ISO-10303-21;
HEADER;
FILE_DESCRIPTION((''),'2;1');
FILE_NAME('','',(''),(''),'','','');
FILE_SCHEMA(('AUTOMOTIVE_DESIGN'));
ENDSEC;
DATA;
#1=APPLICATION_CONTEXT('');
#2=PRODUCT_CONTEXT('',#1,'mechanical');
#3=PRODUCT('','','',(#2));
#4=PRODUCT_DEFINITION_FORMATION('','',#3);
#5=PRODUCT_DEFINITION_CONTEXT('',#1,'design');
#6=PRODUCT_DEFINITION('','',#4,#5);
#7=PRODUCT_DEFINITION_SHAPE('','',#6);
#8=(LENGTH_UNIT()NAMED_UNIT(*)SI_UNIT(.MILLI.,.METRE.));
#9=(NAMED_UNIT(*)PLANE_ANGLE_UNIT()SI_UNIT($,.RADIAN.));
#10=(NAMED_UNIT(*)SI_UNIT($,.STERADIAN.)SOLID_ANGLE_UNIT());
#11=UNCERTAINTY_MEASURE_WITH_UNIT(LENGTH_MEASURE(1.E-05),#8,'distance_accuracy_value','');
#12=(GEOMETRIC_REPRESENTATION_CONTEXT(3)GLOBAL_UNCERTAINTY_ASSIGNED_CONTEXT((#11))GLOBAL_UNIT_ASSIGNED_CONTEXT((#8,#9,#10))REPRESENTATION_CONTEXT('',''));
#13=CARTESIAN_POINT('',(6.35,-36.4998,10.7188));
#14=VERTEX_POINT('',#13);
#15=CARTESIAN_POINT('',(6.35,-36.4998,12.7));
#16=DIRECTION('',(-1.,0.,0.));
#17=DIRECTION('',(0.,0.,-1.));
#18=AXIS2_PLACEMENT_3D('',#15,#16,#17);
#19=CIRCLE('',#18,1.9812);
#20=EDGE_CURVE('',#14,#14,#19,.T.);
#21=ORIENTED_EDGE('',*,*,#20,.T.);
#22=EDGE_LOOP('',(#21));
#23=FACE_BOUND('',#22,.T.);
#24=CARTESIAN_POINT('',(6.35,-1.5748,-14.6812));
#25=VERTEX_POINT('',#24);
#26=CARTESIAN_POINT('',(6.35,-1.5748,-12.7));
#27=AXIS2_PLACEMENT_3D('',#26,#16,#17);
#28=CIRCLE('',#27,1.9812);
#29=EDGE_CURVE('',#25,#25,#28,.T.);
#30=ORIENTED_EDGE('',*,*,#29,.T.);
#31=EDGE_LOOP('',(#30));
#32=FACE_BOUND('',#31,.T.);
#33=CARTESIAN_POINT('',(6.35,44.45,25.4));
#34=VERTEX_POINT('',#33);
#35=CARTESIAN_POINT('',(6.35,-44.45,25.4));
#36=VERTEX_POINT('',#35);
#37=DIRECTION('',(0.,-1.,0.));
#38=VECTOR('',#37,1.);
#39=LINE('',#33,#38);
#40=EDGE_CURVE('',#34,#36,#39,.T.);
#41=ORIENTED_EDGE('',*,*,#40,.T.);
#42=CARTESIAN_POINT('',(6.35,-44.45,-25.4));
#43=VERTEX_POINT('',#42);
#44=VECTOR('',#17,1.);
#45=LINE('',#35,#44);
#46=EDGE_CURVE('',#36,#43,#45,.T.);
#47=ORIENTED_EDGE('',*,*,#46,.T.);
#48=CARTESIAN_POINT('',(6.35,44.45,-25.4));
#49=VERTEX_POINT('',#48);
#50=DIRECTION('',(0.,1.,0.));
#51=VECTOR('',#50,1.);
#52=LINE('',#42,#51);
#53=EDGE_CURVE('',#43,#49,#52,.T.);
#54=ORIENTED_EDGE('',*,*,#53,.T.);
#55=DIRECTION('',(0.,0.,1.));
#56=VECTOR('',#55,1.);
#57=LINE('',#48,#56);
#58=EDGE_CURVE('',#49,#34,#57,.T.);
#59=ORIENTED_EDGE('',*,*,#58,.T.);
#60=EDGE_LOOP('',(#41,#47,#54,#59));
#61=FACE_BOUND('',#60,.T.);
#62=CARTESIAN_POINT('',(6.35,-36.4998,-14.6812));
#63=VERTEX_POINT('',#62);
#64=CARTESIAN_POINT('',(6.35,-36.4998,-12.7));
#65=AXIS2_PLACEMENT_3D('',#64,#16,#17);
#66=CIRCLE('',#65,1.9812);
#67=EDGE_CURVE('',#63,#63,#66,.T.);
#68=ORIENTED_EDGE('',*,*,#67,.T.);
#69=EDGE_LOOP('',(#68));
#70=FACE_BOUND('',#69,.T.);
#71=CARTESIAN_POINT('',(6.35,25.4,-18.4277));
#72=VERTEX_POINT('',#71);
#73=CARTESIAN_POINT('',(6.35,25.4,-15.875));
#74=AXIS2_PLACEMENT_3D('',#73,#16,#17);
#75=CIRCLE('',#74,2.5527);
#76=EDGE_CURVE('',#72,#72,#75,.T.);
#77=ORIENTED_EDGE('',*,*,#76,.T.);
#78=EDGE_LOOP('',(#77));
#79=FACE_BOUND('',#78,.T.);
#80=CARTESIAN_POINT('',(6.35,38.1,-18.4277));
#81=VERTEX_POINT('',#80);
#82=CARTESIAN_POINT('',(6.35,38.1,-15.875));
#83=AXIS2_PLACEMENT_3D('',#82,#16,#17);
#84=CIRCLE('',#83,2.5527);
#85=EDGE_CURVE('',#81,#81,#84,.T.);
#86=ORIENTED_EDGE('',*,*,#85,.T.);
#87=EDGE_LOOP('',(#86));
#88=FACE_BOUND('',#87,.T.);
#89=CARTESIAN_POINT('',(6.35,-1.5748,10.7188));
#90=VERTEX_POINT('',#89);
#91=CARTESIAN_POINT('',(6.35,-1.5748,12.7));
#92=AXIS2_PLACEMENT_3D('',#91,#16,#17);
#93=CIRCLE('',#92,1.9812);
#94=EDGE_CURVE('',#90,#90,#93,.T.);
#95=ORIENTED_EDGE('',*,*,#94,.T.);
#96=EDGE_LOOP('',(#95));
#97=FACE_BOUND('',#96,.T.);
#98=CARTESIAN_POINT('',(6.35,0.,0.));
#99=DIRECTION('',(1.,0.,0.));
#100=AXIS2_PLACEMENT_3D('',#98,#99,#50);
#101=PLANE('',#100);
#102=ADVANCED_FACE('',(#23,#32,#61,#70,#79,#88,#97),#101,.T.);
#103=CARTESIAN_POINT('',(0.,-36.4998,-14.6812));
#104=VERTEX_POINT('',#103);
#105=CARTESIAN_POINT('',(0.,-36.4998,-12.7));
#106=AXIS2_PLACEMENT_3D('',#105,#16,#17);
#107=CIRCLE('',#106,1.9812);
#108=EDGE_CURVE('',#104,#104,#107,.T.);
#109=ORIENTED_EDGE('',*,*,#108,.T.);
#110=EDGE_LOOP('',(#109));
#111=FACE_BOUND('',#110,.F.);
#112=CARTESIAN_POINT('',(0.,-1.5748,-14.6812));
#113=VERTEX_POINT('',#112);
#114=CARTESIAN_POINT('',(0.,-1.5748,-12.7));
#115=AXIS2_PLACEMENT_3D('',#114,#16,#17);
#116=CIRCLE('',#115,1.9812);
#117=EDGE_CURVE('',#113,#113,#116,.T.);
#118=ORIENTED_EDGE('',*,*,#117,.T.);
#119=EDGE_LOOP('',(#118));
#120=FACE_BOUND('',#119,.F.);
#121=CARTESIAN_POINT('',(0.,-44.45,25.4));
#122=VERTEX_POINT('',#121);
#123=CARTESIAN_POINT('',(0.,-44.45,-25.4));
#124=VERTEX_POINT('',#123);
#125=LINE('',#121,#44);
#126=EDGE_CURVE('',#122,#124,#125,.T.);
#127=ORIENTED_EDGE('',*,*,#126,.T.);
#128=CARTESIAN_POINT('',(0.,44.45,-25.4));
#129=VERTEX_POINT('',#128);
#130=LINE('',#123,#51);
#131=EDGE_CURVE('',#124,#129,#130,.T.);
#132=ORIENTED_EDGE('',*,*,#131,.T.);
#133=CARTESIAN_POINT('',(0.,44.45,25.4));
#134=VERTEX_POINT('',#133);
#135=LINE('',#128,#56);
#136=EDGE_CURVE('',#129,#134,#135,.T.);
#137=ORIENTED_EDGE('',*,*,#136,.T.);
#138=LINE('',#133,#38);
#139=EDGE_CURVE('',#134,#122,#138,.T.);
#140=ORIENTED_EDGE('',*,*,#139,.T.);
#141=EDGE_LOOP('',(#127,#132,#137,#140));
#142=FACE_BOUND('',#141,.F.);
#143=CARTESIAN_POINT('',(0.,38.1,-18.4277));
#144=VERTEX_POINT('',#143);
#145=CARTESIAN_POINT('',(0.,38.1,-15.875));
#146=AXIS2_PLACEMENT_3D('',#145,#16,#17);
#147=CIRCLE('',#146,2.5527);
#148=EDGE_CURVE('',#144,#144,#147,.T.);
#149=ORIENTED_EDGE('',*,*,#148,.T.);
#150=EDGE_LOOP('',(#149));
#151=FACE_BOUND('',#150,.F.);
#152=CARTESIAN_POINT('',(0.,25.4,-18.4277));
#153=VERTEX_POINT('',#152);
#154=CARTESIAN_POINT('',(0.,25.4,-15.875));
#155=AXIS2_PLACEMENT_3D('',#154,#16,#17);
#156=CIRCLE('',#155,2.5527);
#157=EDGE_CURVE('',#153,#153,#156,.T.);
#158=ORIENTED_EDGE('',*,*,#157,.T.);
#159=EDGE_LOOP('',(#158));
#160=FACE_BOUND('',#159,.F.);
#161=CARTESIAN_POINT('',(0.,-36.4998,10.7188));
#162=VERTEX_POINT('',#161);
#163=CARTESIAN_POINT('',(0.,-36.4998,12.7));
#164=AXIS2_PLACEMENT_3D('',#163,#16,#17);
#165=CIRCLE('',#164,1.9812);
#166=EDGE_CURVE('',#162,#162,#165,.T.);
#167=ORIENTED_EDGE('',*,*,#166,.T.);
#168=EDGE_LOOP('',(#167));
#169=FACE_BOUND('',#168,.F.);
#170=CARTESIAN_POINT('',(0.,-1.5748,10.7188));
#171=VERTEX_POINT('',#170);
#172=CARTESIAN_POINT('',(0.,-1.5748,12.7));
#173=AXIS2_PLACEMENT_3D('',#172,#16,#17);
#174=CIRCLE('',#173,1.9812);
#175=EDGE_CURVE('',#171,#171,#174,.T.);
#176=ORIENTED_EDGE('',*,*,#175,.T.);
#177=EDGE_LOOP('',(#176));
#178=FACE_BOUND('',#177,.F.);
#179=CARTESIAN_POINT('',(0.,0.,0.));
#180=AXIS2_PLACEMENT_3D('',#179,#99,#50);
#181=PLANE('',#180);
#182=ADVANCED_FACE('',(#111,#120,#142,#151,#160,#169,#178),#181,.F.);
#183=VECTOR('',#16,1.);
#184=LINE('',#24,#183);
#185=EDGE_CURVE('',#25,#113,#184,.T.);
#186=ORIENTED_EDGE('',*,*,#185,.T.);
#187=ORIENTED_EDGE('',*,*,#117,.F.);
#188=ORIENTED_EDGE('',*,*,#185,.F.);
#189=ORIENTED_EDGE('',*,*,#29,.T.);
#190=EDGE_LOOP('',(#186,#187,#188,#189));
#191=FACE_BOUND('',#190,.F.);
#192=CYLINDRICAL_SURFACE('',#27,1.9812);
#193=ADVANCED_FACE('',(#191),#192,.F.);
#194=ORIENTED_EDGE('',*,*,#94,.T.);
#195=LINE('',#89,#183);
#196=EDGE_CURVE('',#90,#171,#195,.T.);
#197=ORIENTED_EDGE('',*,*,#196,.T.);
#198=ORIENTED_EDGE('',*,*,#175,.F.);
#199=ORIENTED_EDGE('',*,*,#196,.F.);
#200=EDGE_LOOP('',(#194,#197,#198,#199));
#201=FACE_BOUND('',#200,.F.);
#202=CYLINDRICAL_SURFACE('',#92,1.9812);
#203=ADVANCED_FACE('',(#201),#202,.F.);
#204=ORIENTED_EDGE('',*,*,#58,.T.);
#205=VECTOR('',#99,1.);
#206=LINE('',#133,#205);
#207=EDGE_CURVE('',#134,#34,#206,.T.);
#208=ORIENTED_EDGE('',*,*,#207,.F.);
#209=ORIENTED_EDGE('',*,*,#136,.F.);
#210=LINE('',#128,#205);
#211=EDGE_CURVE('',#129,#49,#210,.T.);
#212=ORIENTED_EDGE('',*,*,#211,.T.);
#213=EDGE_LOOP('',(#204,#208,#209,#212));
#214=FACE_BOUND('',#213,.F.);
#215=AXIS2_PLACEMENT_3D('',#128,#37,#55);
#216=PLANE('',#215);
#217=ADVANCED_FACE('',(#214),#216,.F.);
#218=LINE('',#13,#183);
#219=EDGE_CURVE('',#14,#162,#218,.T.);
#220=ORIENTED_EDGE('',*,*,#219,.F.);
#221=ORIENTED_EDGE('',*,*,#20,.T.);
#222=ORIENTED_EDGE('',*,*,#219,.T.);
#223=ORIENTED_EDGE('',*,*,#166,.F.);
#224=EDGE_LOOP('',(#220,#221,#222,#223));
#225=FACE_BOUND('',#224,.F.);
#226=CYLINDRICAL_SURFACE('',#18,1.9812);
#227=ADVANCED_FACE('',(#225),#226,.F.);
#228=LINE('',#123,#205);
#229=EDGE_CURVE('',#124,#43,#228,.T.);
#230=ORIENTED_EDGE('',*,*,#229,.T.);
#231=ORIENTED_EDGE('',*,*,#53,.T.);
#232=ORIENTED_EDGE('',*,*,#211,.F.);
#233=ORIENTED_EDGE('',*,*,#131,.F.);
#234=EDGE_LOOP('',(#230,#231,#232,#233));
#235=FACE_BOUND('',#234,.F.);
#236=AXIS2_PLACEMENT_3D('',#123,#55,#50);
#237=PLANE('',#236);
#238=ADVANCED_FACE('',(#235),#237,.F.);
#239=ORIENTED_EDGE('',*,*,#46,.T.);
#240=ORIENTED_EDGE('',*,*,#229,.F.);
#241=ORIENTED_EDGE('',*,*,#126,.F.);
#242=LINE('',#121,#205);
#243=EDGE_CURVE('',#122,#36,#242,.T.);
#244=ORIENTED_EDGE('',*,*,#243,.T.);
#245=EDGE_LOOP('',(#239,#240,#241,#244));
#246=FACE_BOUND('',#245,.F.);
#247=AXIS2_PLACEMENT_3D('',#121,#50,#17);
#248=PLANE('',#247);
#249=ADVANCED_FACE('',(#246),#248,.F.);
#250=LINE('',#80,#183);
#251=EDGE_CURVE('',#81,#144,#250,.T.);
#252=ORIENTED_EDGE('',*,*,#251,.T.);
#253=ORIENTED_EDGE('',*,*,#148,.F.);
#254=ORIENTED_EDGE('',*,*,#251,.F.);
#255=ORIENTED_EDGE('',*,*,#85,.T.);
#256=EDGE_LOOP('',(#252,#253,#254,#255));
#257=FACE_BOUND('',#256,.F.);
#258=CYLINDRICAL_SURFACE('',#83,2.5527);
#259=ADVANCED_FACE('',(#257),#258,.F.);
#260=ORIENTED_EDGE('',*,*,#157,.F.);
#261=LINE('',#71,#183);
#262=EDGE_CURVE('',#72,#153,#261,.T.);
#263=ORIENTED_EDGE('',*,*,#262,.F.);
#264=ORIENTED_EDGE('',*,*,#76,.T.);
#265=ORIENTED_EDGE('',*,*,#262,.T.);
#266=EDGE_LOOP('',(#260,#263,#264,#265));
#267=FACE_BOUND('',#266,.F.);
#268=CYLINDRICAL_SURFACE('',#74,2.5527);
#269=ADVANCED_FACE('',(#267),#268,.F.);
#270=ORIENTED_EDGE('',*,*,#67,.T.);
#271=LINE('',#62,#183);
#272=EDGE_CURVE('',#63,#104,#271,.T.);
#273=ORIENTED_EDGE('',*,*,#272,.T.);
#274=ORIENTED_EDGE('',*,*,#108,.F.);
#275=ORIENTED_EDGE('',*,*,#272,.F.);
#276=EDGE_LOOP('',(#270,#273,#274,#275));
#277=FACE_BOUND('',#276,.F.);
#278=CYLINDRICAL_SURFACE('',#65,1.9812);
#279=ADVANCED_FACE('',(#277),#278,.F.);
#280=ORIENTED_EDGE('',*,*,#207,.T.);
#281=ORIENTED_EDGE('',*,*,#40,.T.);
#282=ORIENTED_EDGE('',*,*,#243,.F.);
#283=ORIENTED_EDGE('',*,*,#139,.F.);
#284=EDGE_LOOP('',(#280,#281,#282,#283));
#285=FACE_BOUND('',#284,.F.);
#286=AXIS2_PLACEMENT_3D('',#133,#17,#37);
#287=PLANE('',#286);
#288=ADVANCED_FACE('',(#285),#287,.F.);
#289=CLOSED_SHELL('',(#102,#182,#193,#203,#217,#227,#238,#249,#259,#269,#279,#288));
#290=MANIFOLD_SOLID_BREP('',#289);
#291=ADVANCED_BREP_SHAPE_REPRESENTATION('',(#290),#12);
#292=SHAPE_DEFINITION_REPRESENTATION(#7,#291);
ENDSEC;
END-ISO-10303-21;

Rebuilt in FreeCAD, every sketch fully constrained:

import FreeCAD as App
import Part
import Sketcher
from FreeCAD import Vector
Q = App.Units.Quantity

doc = App.newDocument("Part")
params = doc.addObject("Spreadsheet::Sheet", "Params")
for row, (alias, value) in enumerate([
    ("sketch1_height", "2 in"),
    ("sketch1_width", "3.5 in"),
    ("pad1_length", "0.25 in"),
    ("sketch2_diameter", "0.156 in"),
    ("hole_diameter", "0.156 in"),
    ("sketch3_diameter", "0.201 in"),
    ("hole2_diameter", "0.201 in"),
], start=1):
    params.set(f"A{row}", alias)
    params.set(f"B{row}", "=" + value)
    params.setAlias(f"B{row}", alias)

body = doc.addObject("PartDesign::Body", "Body")

# Sketch on YZ plane
sketch1 = body.newObject("Sketcher::SketchObject", "Sketch")
sketch1.AttachmentSupport = (doc.getObject("YZ_Plane"), [""])
sketch1.MapMode = "FlatFace"
sketch1.addGeometry([
    Part.LineSegment(Vector(-44, 25, 0), Vector(-44, -25, 0)),
    Part.LineSegment(Vector(-44, -25, 0), Vector(44, -25, 0)),
    Part.LineSegment(Vector(44, -25, 0), Vector(44, 25, 0)),
    Part.LineSegment(Vector(44, 25, 0), Vector(-44, 25, 0)),
], False)
sketch1.addConstraint([
    Sketcher.Constraint("Coincident", 0, 2, 1, 1),
    Sketcher.Constraint("Coincident", 1, 2, 2, 1),
    Sketcher.Constraint("Coincident", 2, 2, 3, 1),
    Sketcher.Constraint("Coincident", 3, 2, 0, 1),
    Sketcher.Constraint("Vertical", 0),
    Sketcher.Constraint("Horizontal", 1),
    Sketcher.Constraint("Vertical", 2),
    Sketcher.Constraint("Horizontal", 3),
    Sketcher.Constraint("Symmetric", 0, 2, 2, 2, -1, 1),
    Sketcher.Constraint("DistanceY", 0, 2, 0, 1, Q("2 in")),
    Sketcher.Constraint("DistanceX", 1, 1, 1, 2, Q("3.5 in")),
])
sketch1.setExpression("Constraints[9]", "Params.sketch1_height")
sketch1.setExpression("Constraints[10]", "Params.sketch1_width")
pad1 = body.newObject("PartDesign::Pad", "Pad")
pad1.Profile = sketch1
pad1.setExpression("Length", "Params.pad1_length")

# Sketch on YZ plane
sketch2 = body.newObject("Sketcher::SketchObject", "Sketch001")
sketch2.AttachmentSupport = (doc.getObject("YZ_Plane"), [""])
sketch2.MapMode = "FlatFace"
sketch2.AttachmentOffset = App.Placement(Vector(0, 0, 0.25 * 25.4), App.Rotation())
sketch2.addGeometry([
    Part.Circle(Vector(-36.5, 12.7, 0), Vector(0, 0, 1), 2),
    Part.Circle(Vector(-36.5, -12.7, 0), Vector(0, 0, 1), 2),
    Part.Circle(Vector(-1.6, -12.7, 0), Vector(0, 0, 1), 2),
    Part.Circle(Vector(-1.6, 12.7, 0), Vector(0, 0, 1), 2),
], False)
sketch2.addConstraint([
    Sketcher.Constraint("Equal", 0, 1),
    Sketcher.Constraint("Equal", 1, 2),
    Sketcher.Constraint("Equal", 2, 3),
    Sketcher.Constraint("Symmetric", 0, 3, 1, 3, -1),
    Sketcher.Constraint("Symmetric", 2, 3, 3, 3, -1),
    Sketcher.Constraint("Horizontal", 1, 3, 2, 3),
    Sketcher.Constraint("Diameter", 0, Q("0.156 in")),
    Sketcher.Constraint("DistanceY", 1, 3, 0, 3, Q("1 in")),
    Sketcher.Constraint("DistanceX", 0, 3, -1, 1, Q("1.437 in")),
    Sketcher.Constraint("DistanceX", 2, 3, -1, 1, Q("0.062 in")),
])
sketch2.setExpression("Constraints[6]", "Params.sketch2_diameter")
doc.recompute()
hole = body.newObject("PartDesign::Hole", "Hole")
hole.Profile = sketch2
hole.ThreadType = "None"
hole.setExpression("Diameter", "Params.hole_diameter")
hole.DepthType = "ThroughAll"

# Sketch on YZ plane
sketch3 = body.newObject("Sketcher::SketchObject", "Sketch002")
sketch3.AttachmentSupport = (doc.getObject("YZ_Plane"), [""])
sketch3.MapMode = "FlatFace"
sketch3.AttachmentOffset = App.Placement(Vector(0, 0, 0.25 * 25.4), App.Rotation())
sketch3.addGeometry([
    Part.Circle(Vector(38.1, -15.9, 0), Vector(0, 0, 1), 2.6),
    Part.Circle(Vector(25.4, -15.9, 0), Vector(0, 0, 1), 2.6),
], False)
sketch3.addConstraint([
    Sketcher.Constraint("Equal", 0, 1),
    Sketcher.Constraint("Horizontal", 0, 3, 1, 3),
    Sketcher.Constraint("Diameter", 0, Q("0.201 in")),
    Sketcher.Constraint("DistanceX", -1, 1, 1, 3, Q("1 in")),
    Sketcher.Constraint("DistanceX", -1, 1, 0, 3, Q("1.5 in")),
    Sketcher.Constraint("DistanceY", 0, 3, -1, 1, Q("0.625 in")),
])
sketch3.setExpression("Constraints[2]", "Params.sketch3_diameter")
doc.recompute()
hole2 = body.newObject("PartDesign::Hole", "Hole001")
hole2.Profile = sketch3
hole2.ThreadType = "None"
hole2.setExpression("Diameter", "Params.hole2_diameter")
hole2.DepthType = "ThroughAll"

doc.recompute()
